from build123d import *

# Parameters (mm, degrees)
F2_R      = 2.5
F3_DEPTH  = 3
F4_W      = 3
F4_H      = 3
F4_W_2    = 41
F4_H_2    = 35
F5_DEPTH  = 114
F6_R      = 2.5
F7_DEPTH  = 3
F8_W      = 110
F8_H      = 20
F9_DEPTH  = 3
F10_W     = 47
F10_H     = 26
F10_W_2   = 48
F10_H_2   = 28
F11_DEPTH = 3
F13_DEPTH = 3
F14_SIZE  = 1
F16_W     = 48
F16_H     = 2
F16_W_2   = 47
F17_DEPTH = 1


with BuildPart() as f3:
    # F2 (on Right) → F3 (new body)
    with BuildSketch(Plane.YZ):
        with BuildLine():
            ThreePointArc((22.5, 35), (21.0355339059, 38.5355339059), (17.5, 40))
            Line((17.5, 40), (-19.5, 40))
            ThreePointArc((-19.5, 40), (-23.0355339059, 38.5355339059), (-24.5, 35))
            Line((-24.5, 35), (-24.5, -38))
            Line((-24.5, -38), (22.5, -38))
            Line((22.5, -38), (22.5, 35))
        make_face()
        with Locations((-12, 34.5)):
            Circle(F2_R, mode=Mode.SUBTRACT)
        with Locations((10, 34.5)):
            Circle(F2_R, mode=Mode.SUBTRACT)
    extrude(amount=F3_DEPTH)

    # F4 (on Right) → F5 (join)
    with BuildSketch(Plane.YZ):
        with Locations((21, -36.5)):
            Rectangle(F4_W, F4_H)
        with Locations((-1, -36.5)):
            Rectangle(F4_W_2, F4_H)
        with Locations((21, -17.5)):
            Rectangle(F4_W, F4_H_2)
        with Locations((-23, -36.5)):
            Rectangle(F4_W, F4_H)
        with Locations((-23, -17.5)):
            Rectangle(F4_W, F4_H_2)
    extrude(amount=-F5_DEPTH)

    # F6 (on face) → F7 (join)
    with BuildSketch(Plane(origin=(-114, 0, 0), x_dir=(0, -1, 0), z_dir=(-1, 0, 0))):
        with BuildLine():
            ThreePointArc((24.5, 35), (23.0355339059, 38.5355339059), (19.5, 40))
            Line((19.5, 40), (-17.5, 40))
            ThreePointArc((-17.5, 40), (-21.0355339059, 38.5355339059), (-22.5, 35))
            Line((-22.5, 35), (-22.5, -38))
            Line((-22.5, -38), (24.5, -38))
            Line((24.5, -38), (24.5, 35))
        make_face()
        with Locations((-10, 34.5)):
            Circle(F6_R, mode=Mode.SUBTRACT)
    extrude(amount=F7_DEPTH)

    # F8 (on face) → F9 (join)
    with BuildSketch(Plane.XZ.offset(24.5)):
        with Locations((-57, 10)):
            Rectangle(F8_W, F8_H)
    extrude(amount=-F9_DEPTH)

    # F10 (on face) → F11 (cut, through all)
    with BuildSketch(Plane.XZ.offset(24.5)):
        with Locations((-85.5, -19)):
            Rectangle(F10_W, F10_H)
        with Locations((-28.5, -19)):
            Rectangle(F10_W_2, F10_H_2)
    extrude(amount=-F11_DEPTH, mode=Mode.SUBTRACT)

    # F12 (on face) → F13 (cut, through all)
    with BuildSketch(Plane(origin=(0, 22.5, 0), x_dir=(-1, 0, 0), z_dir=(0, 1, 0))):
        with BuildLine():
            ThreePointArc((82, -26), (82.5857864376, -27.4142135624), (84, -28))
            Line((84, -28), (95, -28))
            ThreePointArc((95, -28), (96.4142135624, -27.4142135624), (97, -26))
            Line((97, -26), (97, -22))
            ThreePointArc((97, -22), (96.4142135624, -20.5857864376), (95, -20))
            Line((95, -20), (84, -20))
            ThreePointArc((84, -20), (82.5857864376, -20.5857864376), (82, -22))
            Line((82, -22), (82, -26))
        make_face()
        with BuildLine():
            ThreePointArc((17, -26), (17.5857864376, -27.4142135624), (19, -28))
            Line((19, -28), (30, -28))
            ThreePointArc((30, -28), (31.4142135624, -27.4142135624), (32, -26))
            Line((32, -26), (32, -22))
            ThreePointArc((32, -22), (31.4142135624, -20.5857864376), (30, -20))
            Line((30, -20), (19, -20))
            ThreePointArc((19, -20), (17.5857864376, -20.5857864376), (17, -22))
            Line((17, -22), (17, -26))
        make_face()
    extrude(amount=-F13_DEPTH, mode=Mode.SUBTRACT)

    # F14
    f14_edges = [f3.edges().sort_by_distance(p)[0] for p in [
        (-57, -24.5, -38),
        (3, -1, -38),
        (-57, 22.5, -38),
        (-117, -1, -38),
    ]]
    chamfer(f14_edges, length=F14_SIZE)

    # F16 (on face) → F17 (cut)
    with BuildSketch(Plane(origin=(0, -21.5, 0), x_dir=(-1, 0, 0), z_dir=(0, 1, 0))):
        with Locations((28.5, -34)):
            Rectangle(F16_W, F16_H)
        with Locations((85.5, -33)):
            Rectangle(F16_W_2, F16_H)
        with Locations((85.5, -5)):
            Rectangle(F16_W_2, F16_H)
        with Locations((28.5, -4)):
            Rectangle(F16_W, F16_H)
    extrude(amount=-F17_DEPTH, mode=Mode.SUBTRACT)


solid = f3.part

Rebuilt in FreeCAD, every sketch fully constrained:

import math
import FreeCAD as App
import Part
import Sketcher
from FreeCAD import Vector
Q = App.Units.Quantity


def edges_at(feature, points):
    """Names of the edges that pass closest to the given points."""
    edges = feature.Shape.Edges
    near = lambda p: min(range(len(edges)), key=lambda i: edges[i].distToShape(Part.Vertex(*p))[0])
    return sorted({f"Edge{near(p) + 1}" for p in points})


def add_polygon(sketch, points):
    """Adds a closed chain of lines whose ends are joined by coincident constraints."""
    first, n = sketch.GeometryCount, len(points)
    for a, b in zip(points, points[1:] + points[:1]):
        sketch.addGeometry(Part.LineSegment(App.Vector(*a, 0), App.Vector(*b, 0)), False)
    for i in range(n):
        sketch.addConstraint(Sketcher.Constraint("Coincident", first + i, 2, first + (i + 1) % n, 1))

doc = App.newDocument("Part")
body = doc.addObject("PartDesign::Body", "Body")

# Sketch on YZ plane
sketch1 = doc.addObject("Sketcher::SketchObject", "Sketch")
body.addObject(sketch1)
sketch1.AttachmentSupport = (doc.YZ_Plane, [""])
sketch1.MapMode = "FlatFace"
sketch1.addGeometry([
    Part.ArcOfCircle(Part.Circle(Vector(17.5, 35, 0), Vector(0, 0, 1), 5), math.radians(0), math.radians(90)),  # 0
    Part.LineSegment(Vector(17.5, 40, 0), Vector(-19.5, 40, 0)),  # 1
    Part.ArcOfCircle(Part.Circle(Vector(-19.5, 35, 0), Vector(0, 0, 1), 5), math.radians(90), math.radians(180)),  # 2
    Part.LineSegment(Vector(-24.5, 35, 0), Vector(-24.5, -38, 0)),  # 3
    Part.LineSegment(Vector(-24.5, -38, 0), Vector(22.5, -38, 0)),  # 4
    Part.LineSegment(Vector(22.5, -38, 0), Vector(22.5, 35, 0)),  # 5
    Part.Circle(Vector(-12, 34.5, 0), Vector(0, 0, 1), 2.5),  # 6
    Part.Circle(Vector(10, 34.5, 0), Vector(0, 0, 1), 2.5),  # 7
], False)
sketch1.addConstraint([
    Sketcher.Constraint("Tangent", 0, 2, 1, 1),
    Sketcher.Constraint("Tangent", 1, 2, 2, 1),
    Sketcher.Constraint("Tangent", 2, 2, 3, 1),
    Sketcher.Constraint("Coincident", 3, 2, 4, 1),
    Sketcher.Constraint("Coincident", 4, 2, 5, 1),
    Sketcher.Constraint("Tangent", 5, 2, 0, 1),
    Sketcher.Constraint("Horizontal", 1),
    Sketcher.Constraint("Vertical", 3),
    Sketcher.Constraint("Horizontal", 4),
    Sketcher.Constraint("Vertical", 5),
    Sketcher.Constraint("Equal", 0, 2),
    Sketcher.Constraint("Equal", 6, 7),
    Sketcher.Constraint("Horizontal", 6, 3, 7, 3),
    Sketcher.Constraint("Diameter", 6, Q("5 mm")),
    Sketcher.Constraint("Radius", 0, Q("5 mm")),
    Sketcher.Constraint("DistanceX", 1, 2, 1, 1, Q("37 mm")),
    Sketcher.Constraint("DistanceY", 3, 2, 3, 1, Q("73 mm")),
    Sketcher.Constraint("DistanceY", -1, 1, 0, 3, Q("35 mm")),
    Sketcher.Constraint("DistanceX", 6, 3, -1, 1, Q("12 mm")),
    Sketcher.Constraint("DistanceX", -1, 1, 7, 3, Q("10 mm")),
    Sketcher.Constraint("DistanceX", -1, 1, 0, 3, Q("17.5 mm")),
    Sketcher.Constraint("DistanceY", -1, 1, 6, 3, Q("34.5 mm")),
])
pad1 = doc.addObject("PartDesign::Pad", "Pad")
body.addObject(pad1)
pad1.Profile = sketch1
pad1.Length = 3

# Sketch on YZ plane
sketch2 = doc.addObject("Sketcher::SketchObject", "Sketch001")
body.addObject(sketch2)
sketch2.AttachmentSupport = (doc.YZ_Plane, [""])
sketch2.MapMode = "FlatFace"
add_polygon(sketch2, [(22.5, -38), (22.5, 0), (19.5, 0), (19.5, -35), (-21.5, -35), (-21.5, 0), (-24.5, 0), (-24.5, -38)])  # lines 0-7
sketch2.addConstraint([
    Sketcher.Constraint("Vertical", 0),
    Sketcher.Constraint("Horizontal", 1),
    Sketcher.Constraint("Vertical", 2),
    Sketcher.Constraint("Horizontal", 3),
    Sketcher.Constraint("Vertical", 4),
    Sketcher.Constraint("Horizontal", 5),
    Sketcher.Constraint("Vertical", 6),
    Sketcher.Constraint("Horizontal", 7),
    Sketcher.Constraint("PointOnObject", 0, 2, -1),
    Sketcher.Constraint("PointOnObject", 4, 2, -1),
    Sketcher.Constraint("Equal", 1, 5),
    Sketcher.Constraint("DistanceX", 1, 2, 1, 1, Q("3 mm")),
    Sketcher.Constraint("DistanceX", 3, 2, 3, 1, Q("41 mm")),
    Sketcher.Constraint("DistanceY", 0, 1, 0, 2, Q("38 mm")),
    Sketcher.Constraint("DistanceY", 2, 2, 2, 1, Q("35 mm")),
    Sketcher.Constraint("DistanceX", -1, 1, 0, 2, Q("22.5 mm")),
])
pad2 = doc.addObject("PartDesign::Pad", "Pad001")
body.addObject(pad2)
pad2.Profile = sketch2
pad2.Length = 114
pad2.Reversed = True

# Sketch on YZ plane
sketch3 = doc.addObject("Sketcher::SketchObject", "Sketch002")
body.addObject(sketch3)
sketch3.AttachmentSupport = (doc.YZ_Plane, [""])
sketch3.MapMode = "FlatFace"
sketch3.AttachmentOffset = App.Placement(Vector(0, 0, -114), App.Rotation())
sketch3.addGeometry([
    Part.ArcOfCircle(Part.Circle(Vector(-19.5, 35, 0), Vector(0, 0, 1), 5), math.radians(90), math.radians(180)),  # 0
    Part.LineSegment(Vector(-19.5, 40, 0), Vector(17.5, 40, 0)),  # 1
    Part.ArcOfCircle(Part.Circle(Vector(17.5, 35, 0), Vector(0, 0, 1), 5), math.radians(0), math.radians(90)),  # 2
    Part.LineSegment(Vector(22.5, 35, 0), Vector(22.5, -38, 0)),  # 3
    Part.LineSegment(Vector(22.5, -38, 0), Vector(-24.5, -38, 0)),  # 4
    Part.LineSegment(Vector(-24.5, -38, 0), Vector(-24.5, 35, 0)),  # 5
    Part.Circle(Vector(10, 34.5, 0), Vector(0, 0, 1), 2.5),  # 6
], False)
sketch3.addConstraint([
    Sketcher.Constraint("Tangent", 0, 1, 1, 1),
    Sketcher.Constraint("Tangent", 1, 2, 2, 2),
    Sketcher.Constraint("Tangent", 2, 1, 3, 1),
    Sketcher.Constraint("Coincident", 3, 2, 4, 1),
    Sketcher.Constraint("Coincident", 4, 2, 5, 1),
    Sketcher.Constraint("Tangent", 5, 2, 0, 2),
    Sketcher.Constraint("Horizontal", 1),
    Sketcher.Constraint("Vertical", 3),
    Sketcher.Constraint("Horizontal", 4),
    Sketcher.Constraint("Vertical", 5),
    Sketcher.Constraint("Equal", 0, 2),
    Sketcher.Constraint("Diameter", 6, Q("5 mm")),
    Sketcher.Constraint("Radius", 0, Q("5 mm")),
    Sketcher.Constraint("DistanceX", 1, 1, 1, 2, Q("37 mm")),
    Sketcher.Constraint("DistanceY", 3, 2, 3, 1, Q("73 mm")),
    Sketcher.Constraint("DistanceY", -1, 1, 0, 3, Q("35 mm")),
    Sketcher.Constraint("DistanceX", -1, 1, 6, 3, Q("10 mm")),
    Sketcher.Constraint("DistanceX", 0, 3, -1, 1, Q("19.5 mm")),
    Sketcher.Constraint("DistanceY", -1, 1, 6, 3, Q("34.5 mm")),
])
pad3 = doc.addObject("PartDesign::Pad", "Pad002")
body.addObject(pad3)
pad3.Profile = sketch3
pad3.Length = 3
pad3.Reversed = True

# Sketch on XZ plane
sketch4 = doc.addObject("Sketcher::SketchObject", "Sketch003")
body.addObject(sketch4)
sketch4.AttachmentSupport = (doc.XZ_Plane, [""])
sketch4.MapMode = "FlatFace"
sketch4.AttachmentOffset = App.Placement(Vector(0, 0, 24.5), App.Rotation())
add_polygon(sketch4, [(-112, 20), (-112, 0), (-2, 0), (-2, 20)])  # lines 0-3
sketch4.addConstraint([
    Sketcher.Constraint("Vertical", 0),
    Sketcher.Constraint("Horizontal", 1),
    Sketcher.Constraint("Vertical", 2),
    Sketcher.Constraint("Horizontal", 3),
    Sketcher.Constraint("PointOnObject", 0, 2, -1),
    Sketcher.Constraint("DistanceX", 1, 1, 1, 2, Q("110 mm")),
    Sketcher.Constraint("DistanceY", 0, 2, 0, 1, Q("20 mm")),
    Sketcher.Constraint("DistanceX", 0, 2, -1, 1, Q("112 mm")),
])
pad4 = doc.addObject("PartDesign::Pad", "Pad003")
body.addObject(pad4)
pad4.Profile = sketch4
pad4.Length = 3
pad4.Reversed = True

# Sketch on XZ plane
sketch5 = doc.addObject("Sketcher::SketchObject", "Sketch004")
body.addObject(sketch5)
sketch5.AttachmentSupport = (doc.XZ_Plane, [""])
sketch5.MapMode = "FlatFace"
sketch5.AttachmentOffset = App.Placement(Vector(0, 0, 24.5), App.Rotation())
add_polygon(sketch5, [(-109, -6), (-109, -32), (-62, -32), (-62, -6)])  # lines 0-3
add_polygon(sketch5, [(-52, -5), (-52, -33), (-4, -33), (-4, -5)])  # lines 4-7
sketch5.addConstraint([
    Sketcher.Constraint("Vertical", 0),
    Sketcher.Constraint("Horizontal", 1),
    Sketcher.Constraint("Vertical", 2),
    Sketcher.Constraint("Horizontal", 3),
    Sketcher.Constraint("Vertical", 4),
    Sketcher.Constraint("Horizontal", 5),
    Sketcher.Constraint("Vertical", 6),
    Sketcher.Constraint("Horizontal", 7),
    Sketcher.Constraint("DistanceX", 1, 1, 1, 2, Q("47 mm")),
    Sketcher.Constraint("DistanceX", 5, 1, 5, 2, Q("48 mm")),
    Sketcher.Constraint("DistanceY", 0, 2, 0, 1, Q("26 mm")),
    Sketcher.Constraint("DistanceY", 4, 2, 4, 1, Q("28 mm")),
    Sketcher.Constraint("DistanceX", 0, 2, -1, 1, Q("109 mm")),
    Sketcher.Constraint("DistanceY", 0, 2, -1, 1, Q("32 mm")),
    Sketcher.Constraint("DistanceY", 4, 2, -1, 1, Q("33 mm")),
    Sketcher.Constraint("DistanceX", 4, 2, -1, 1, Q("52.5 mm")),
])
pocket1 = doc.addObject("PartDesign::Pocket", "Pocket")
body.addObject(pocket1)
pocket1.Profile = sketch5
pocket1.Length = 3

# Sketch on XZ plane
sketch6 = doc.addObject("Sketcher::SketchObject", "Sketch005")
body.addObject(sketch6)
sketch6.AttachmentSupport = (doc.XZ_Plane, [""])
sketch6.MapMode = "FlatFace"
sketch6.AttachmentOffset = App.Placement(Vector(0, 0, -22.5), App.Rotation())
sketch6.addGeometry([
    Part.ArcOfCircle(Part.Circle(Vector(-84, -26, 0), Vector(0, 0, 1), 2), math.radians(-90), math.radians(0)),  # 0
    Part.LineSegment(Vector(-84, -28, 0), Vector(-95, -28, 0)),  # 1
    Part.ArcOfCircle(Part.Circle(Vector(-95, -26, 0), Vector(0, 0, 1), 2), math.radians(180), math.radians(270)),  # 2
    Part.LineSegment(Vector(-97, -26, 0), Vector(-97, -22, 0)),  # 3
    Part.ArcOfCircle(Part.Circle(Vector(-95, -22, 0), Vector(0, 0, 1), 2), math.radians(90), math.radians(180)),  # 4
    Part.LineSegment(Vector(-95, -20, 0), Vector(-84, -20, 0)),  # 5
    Part.ArcOfCircle(Part.Circle(Vector(-84, -22, 0), Vector(0, 0, 1), 2), math.radians(0), math.radians(90)),  # 6
    Part.LineSegment(Vector(-82, -22, 0), Vector(-82, -26, 0)),  # 7
    Part.ArcOfCircle(Part.Circle(Vector(-19, -26, 0), Vector(0, 0, 1), 2), math.radians(-90), math.radians(0)),  # 8
    Part.LineSegment(Vector(-19, -28, 0), Vector(-30, -28, 0)),  # 9
    Part.ArcOfCircle(Part.Circle(Vector(-30, -26, 0), Vector(0, 0, 1), 2), math.radians(180), math.radians(270)),  # 10
    Part.LineSegment(Vector(-32, -26, 0), Vector(-32, -22, 0)),  # 11
    Part.ArcOfCircle(Part.Circle(Vector(-30, -22, 0), Vector(0, 0, 1), 2), math.radians(90), math.radians(180)),  # 12
    Part.LineSegment(Vector(-30, -20, 0), Vector(-19, -20, 0)),  # 13
    Part.ArcOfCircle(Part.Circle(Vector(-19, -22, 0), Vector(0, 0, 1), 2), math.radians(0), math.radians(90)),  # 14
    Part.LineSegment(Vector(-17, -22, 0), Vector(-17, -26, 0)),  # 15
], False)
sketch6.addConstraint([
    Sketcher.Constraint("Tangent", 0, 1, 1, 1),
    Sketcher.Constraint("Tangent", 1, 2, 2, 2),
    Sketcher.Constraint("Tangent", 2, 1, 3, 1),
    Sketcher.Constraint("Tangent", 3, 2, 4, 2),
    Sketcher.Constraint("Tangent", 4, 1, 5, 1),
    Sketcher.Constraint("Tangent", 5, 2, 6, 2),
    Sketcher.Constraint("Tangent", 6, 1, 7, 1),
    Sketcher.Constraint("Tangent", 7, 2, 0, 2),
    Sketcher.Constraint("Tangent", 8, 1, 9, 1),
    Sketcher.Constraint("Tangent", 9, 2, 10, 2),
    Sketcher.Constraint("Tangent", 10, 1, 11, 1),
    Sketcher.Constraint("Tangent", 11, 2, 12, 2),
    Sketcher.Constraint("Tangent", 12, 1, 13, 1),
    Sketcher.Constraint("Tangent", 13, 2, 14, 2),
    Sketcher.Constraint("Tangent", 14, 1, 15, 1),
    Sketcher.Constraint("Tangent", 15, 2, 8, 2),
    Sketcher.Constraint("Horizontal", 1),
    Sketcher.Constraint("Vertical", 3),
    Sketcher.Constraint("Horizontal", 5),
    Sketcher.Constraint("Vertical", 7),
    Sketcher.Constraint("Horizontal", 9),
    Sketcher.Constraint("Vertical", 11),
    Sketcher.Constraint("Horizontal", 13),
    Sketcher.Constraint("Vertical", 15),
    Sketcher.Constraint("Equal", 0, 2),
    Sketcher.Constraint("Equal", 2, 4),
    Sketcher.Constraint("Equal", 4, 6),
    Sketcher.Constraint("Equal", 6, 8),
    Sketcher.Constraint("Equal", 8, 10),
    Sketcher.Constraint("Equal", 10, 12),
    Sketcher.Constraint("Equal", 12, 14),
    Sketcher.Constraint("Horizontal", 2, 3, 8, 3),
    Sketcher.Constraint("Horizontal", 6, 3, 12, 3),
    Sketcher.Constraint("Equal", 5, 9),
    Sketcher.Constraint("Radius", 0, Q("2 mm")),
    Sketcher.Constraint("DistanceX", 1, 2, 1, 1, Q("11 mm")),
    Sketcher.Constraint("DistanceY", 3, 1, 3, 2, Q("4 mm")),
    Sketcher.Constraint("DistanceX", 0, 3, -1, 1, Q("84 mm")),
    Sketcher.Constraint("DistanceY", 0, 3, -1, 1, Q("26 mm")),
    Sketcher.Constraint("DistanceX", 8, 3, -1, 1, Q("19 mm")),
])
pocket2 = doc.addObject("PartDesign::Pocket", "Pocket001")
body.addObject(pocket2)
pocket2.Profile = sketch6
pocket2.Type = "ThroughAll"
pocket2.Reversed = True
doc.recompute()

chamfer = doc.addObject("PartDesign::Chamfer", "Chamfer")
body.addObject(chamfer)
chamfer.Base = (pocket2, edges_at(pocket2, [
    (-57, -24.5, -38),
    (3, -1, -38),
    (-57, 22.5, -38),
    (-117, -1, -38),
]))
chamfer.Size = 1

# Sketch on XZ plane
sketch7 = doc.addObject("Sketcher::SketchObject", "Sketch006")
body.addObject(sketch7)
sketch7.AttachmentSupport = (doc.XZ_Plane, [""])
sketch7.MapMode = "FlatFace"
sketch7.AttachmentOffset = App.Placement(Vector(0, 0, 21.5), App.Rotation())
add_polygon(sketch7, [(-4.5, -33), (-4.5, -35), (-52.5, -35), (-52.5, -33)])  # lines 0-3
add_polygon(sketch7, [(-62, -32), (-62, -34), (-109, -34), (-109, -32)])  # lines 4-7
add_polygon(sketch7, [(-62, -4), (-62, -6), (-109, -6), (-109, -4)])  # lines 8-11
add_polygon(sketch7, [(-4.5, -3), (-4.5, -5), (-52.5, -5), (-52.5, -3)])  # lines 12-15
sketch7.addConstraint([
    Sketcher.Constraint("Vertical", 0),
    Sketcher.Constraint("Horizontal", 1),
    Sketcher.Constraint("Vertical", 2),
    Sketcher.Constraint("Horizontal", 3),
    Sketcher.Constraint("Vertical", 4),
    Sketcher.Constraint("Horizontal", 5),
    Sketcher.Constraint("Vertical", 6),
    Sketcher.Constraint("Horizontal", 7),
    Sketcher.Constraint("Vertical", 8),
    Sketcher.Constraint("Horizontal", 9),
    Sketcher.Constraint("Vertical", 10),
    Sketcher.Constraint("Horizontal", 11),
    Sketcher.Constraint("Vertical", 12),
    Sketcher.Constraint("Horizontal", 13),
    Sketcher.Constraint("Vertical", 14),
    Sketcher.Constraint("Horizontal", 15),
    Sketcher.Constraint("Vertical", 7, 2, 8, 2),
    Sketcher.Constraint("Vertical", 6, 2, 9, 2),
    Sketcher.Constraint("Vertical", 3, 2, 12, 2),
    Sketcher.Constraint("Vertical", 2, 2, 13, 2),
    Sketcher.Constraint("Equal", 2, 4),
    Sketcher.Constraint("Equal", 6, 8),
    Sketcher.Constraint("Equal", 10, 12),
    Sketcher.Constraint("DistanceX", 1, 2, 1, 1, Q("48 mm")),
    Sketcher.Constraint("DistanceX", 5, 2, 5, 1, Q("47 mm")),
    Sketcher.Constraint("DistanceY", 0, 2, 0, 1, Q("2 mm")),
    Sketcher.Constraint("DistanceY", 0, 2, -1, 1, Q("35 mm")),
    Sketcher.Constraint("DistanceX", 4, 2, -1, 1, Q("62 mm")),
    Sketcher.Constraint("DistanceY", 4, 2, -1, 1, Q("34 mm")),
    Sketcher.Constraint("DistanceY", 8, 2, -1, 1, Q("6 mm")),
    Sketcher.Constraint("DistanceY", 12, 2, -1, 1, Q("5 mm")),
    Sketcher.Constraint("DistanceX", 0, 2, -1, 1, Q("4.5 mm")),
])
pocket3 = doc.addObject("PartDesign::Pocket", "Pocket002")
body.addObject(pocket3)
pocket3.Profile = sketch7
pocket3.Length = 1
pocket3.Reversed = True

doc.recompute()
